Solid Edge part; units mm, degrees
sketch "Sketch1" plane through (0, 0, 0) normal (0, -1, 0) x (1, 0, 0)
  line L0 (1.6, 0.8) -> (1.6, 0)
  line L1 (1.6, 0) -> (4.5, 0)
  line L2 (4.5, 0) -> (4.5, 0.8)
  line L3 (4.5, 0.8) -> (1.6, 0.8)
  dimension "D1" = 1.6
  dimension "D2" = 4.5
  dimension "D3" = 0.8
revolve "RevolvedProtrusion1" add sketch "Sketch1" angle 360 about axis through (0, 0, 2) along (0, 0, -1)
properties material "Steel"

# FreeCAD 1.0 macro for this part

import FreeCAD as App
import Part
import Sketcher


def add_polygon(sketch, points):
    """Adds a closed chain of lines whose ends are joined by coincident constraints."""
    first, n = sketch.GeometryCount, len(points)
    for a, b in zip(points, points[1:] + points[:1]):
        sketch.addGeometry(Part.LineSegment(App.Vector(*a, 0), App.Vector(*b, 0)), False)
    for i in range(n):
        sketch.addConstraint(Sketcher.Constraint("Coincident", first + i, 2, first + (i + 1) % n, 1))

doc = App.newDocument("Part")
body = doc.addObject("PartDesign::Body", "Body")

sketch1 = doc.addObject("Sketcher::SketchObject", "Sketch")
body.addObject(sketch1)
sketch1.AttachmentSupport = (doc.XZ_Plane, [""])
sketch1.MapMode = "FlatFace"
add_polygon(sketch1, [(4.5, 0.8), (1.6, 0.8), (1.6, 0), (4.5, 0)])
sketch1.addConstraint([
    Sketcher.Constraint("Horizontal", 0),
    Sketcher.Constraint("Vertical", 1),
    Sketcher.Constraint("Horizontal", 2),
    Sketcher.Constraint("Vertical", 3),
    Sketcher.Constraint("PointOnObject", 1, 2, -1),
    Sketcher.Constraint("DistanceX", -1, 1, 2, 2, 4.5),
    Sketcher.Constraint("DistanceX", 0, 2, 0, 1, 2.9),
    Sketcher.Constraint("DistanceY", 1, 2, 1, 1, 0.8),
])
revolution = doc.addObject("PartDesign::Revolution", "Revolution")
body.addObject(revolution)
revolution.Profile = sketch1
revolution.ReferenceAxis = (sketch1, ["V_Axis"])
revolution.Angle = 360

doc.recompute()
